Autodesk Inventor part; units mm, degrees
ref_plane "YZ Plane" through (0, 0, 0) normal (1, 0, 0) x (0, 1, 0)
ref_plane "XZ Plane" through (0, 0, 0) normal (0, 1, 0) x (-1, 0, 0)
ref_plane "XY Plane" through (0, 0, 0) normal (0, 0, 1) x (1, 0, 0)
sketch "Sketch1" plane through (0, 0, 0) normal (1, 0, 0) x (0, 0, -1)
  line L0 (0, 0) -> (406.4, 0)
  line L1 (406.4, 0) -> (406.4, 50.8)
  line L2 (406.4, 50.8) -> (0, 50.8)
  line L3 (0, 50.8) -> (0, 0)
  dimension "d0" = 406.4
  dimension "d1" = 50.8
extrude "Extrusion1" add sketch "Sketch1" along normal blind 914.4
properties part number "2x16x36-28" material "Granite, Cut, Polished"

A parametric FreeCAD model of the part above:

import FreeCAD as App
import Part
import Sketcher

V = App.Vector
Q = App.Units.Quantity

doc = App.newDocument("Part")
params = doc.addObject("Spreadsheet::Sheet", "Params")
for row, (alias, value) in enumerate([
    ("sketch1_width", "2 in"),
    ("sketch1_height", "16 in"),
    ("pad1_length", "36 in"),
], start=1):
    params.set(f"A{row}", alias)
    params.set(f"B{row}", "=" + value)
    params.setAlias(f"B{row}", alias)

body = doc.addObject("PartDesign::Body", "Body")

# Sketch on YZ plane
sketch1 = doc.addObject("Sketcher::SketchObject", "Sketch")
body.addObject(sketch1)
sketch1.AttachmentSupport = (doc.YZ_Plane, [""])
sketch1.MapMode = "FlatFace"
sketch1.addGeometry([
    Part.LineSegment(V(51, 0, 0), V(0, 0, 0)),
    Part.LineSegment(V(0, 0, 0), V(0, -406, 0)),
    Part.LineSegment(V(0, -406, 0), V(51, -406, 0)),
    Part.LineSegment(V(51, -406, 0), V(51, 0, 0)),
], False)
sketch1.addConstraint([
    Sketcher.Constraint("Coincident", 0, 2, 1, 1),
    Sketcher.Constraint("Coincident", 1, 2, 2, 1),
    Sketcher.Constraint("Coincident", 2, 2, 3, 1),
    Sketcher.Constraint("Coincident", 3, 2, 0, 1),
    Sketcher.Constraint("Horizontal", 0),
    Sketcher.Constraint("Vertical", 1),
    Sketcher.Constraint("Horizontal", 2),
    Sketcher.Constraint("Vertical", 3),
    Sketcher.Constraint("Coincident", 0, 2, -1, 1),
    Sketcher.Constraint("DistanceX", 0, 2, 0, 1, Q("2 in")),
    Sketcher.Constraint("DistanceY", 1, 2, 1, 1, Q("16 in")),
])
sketch1.setExpression("Constraints[9]", "Params.sketch1_width")
sketch1.setExpression("Constraints[10]", "Params.sketch1_height")
pad1 = doc.addObject("PartDesign::Pad", "Pad")
body.addObject(pad1)
pad1.Profile = sketch1
pad1.setExpression("Length", "Params.pad1_length")

doc.recompute()
